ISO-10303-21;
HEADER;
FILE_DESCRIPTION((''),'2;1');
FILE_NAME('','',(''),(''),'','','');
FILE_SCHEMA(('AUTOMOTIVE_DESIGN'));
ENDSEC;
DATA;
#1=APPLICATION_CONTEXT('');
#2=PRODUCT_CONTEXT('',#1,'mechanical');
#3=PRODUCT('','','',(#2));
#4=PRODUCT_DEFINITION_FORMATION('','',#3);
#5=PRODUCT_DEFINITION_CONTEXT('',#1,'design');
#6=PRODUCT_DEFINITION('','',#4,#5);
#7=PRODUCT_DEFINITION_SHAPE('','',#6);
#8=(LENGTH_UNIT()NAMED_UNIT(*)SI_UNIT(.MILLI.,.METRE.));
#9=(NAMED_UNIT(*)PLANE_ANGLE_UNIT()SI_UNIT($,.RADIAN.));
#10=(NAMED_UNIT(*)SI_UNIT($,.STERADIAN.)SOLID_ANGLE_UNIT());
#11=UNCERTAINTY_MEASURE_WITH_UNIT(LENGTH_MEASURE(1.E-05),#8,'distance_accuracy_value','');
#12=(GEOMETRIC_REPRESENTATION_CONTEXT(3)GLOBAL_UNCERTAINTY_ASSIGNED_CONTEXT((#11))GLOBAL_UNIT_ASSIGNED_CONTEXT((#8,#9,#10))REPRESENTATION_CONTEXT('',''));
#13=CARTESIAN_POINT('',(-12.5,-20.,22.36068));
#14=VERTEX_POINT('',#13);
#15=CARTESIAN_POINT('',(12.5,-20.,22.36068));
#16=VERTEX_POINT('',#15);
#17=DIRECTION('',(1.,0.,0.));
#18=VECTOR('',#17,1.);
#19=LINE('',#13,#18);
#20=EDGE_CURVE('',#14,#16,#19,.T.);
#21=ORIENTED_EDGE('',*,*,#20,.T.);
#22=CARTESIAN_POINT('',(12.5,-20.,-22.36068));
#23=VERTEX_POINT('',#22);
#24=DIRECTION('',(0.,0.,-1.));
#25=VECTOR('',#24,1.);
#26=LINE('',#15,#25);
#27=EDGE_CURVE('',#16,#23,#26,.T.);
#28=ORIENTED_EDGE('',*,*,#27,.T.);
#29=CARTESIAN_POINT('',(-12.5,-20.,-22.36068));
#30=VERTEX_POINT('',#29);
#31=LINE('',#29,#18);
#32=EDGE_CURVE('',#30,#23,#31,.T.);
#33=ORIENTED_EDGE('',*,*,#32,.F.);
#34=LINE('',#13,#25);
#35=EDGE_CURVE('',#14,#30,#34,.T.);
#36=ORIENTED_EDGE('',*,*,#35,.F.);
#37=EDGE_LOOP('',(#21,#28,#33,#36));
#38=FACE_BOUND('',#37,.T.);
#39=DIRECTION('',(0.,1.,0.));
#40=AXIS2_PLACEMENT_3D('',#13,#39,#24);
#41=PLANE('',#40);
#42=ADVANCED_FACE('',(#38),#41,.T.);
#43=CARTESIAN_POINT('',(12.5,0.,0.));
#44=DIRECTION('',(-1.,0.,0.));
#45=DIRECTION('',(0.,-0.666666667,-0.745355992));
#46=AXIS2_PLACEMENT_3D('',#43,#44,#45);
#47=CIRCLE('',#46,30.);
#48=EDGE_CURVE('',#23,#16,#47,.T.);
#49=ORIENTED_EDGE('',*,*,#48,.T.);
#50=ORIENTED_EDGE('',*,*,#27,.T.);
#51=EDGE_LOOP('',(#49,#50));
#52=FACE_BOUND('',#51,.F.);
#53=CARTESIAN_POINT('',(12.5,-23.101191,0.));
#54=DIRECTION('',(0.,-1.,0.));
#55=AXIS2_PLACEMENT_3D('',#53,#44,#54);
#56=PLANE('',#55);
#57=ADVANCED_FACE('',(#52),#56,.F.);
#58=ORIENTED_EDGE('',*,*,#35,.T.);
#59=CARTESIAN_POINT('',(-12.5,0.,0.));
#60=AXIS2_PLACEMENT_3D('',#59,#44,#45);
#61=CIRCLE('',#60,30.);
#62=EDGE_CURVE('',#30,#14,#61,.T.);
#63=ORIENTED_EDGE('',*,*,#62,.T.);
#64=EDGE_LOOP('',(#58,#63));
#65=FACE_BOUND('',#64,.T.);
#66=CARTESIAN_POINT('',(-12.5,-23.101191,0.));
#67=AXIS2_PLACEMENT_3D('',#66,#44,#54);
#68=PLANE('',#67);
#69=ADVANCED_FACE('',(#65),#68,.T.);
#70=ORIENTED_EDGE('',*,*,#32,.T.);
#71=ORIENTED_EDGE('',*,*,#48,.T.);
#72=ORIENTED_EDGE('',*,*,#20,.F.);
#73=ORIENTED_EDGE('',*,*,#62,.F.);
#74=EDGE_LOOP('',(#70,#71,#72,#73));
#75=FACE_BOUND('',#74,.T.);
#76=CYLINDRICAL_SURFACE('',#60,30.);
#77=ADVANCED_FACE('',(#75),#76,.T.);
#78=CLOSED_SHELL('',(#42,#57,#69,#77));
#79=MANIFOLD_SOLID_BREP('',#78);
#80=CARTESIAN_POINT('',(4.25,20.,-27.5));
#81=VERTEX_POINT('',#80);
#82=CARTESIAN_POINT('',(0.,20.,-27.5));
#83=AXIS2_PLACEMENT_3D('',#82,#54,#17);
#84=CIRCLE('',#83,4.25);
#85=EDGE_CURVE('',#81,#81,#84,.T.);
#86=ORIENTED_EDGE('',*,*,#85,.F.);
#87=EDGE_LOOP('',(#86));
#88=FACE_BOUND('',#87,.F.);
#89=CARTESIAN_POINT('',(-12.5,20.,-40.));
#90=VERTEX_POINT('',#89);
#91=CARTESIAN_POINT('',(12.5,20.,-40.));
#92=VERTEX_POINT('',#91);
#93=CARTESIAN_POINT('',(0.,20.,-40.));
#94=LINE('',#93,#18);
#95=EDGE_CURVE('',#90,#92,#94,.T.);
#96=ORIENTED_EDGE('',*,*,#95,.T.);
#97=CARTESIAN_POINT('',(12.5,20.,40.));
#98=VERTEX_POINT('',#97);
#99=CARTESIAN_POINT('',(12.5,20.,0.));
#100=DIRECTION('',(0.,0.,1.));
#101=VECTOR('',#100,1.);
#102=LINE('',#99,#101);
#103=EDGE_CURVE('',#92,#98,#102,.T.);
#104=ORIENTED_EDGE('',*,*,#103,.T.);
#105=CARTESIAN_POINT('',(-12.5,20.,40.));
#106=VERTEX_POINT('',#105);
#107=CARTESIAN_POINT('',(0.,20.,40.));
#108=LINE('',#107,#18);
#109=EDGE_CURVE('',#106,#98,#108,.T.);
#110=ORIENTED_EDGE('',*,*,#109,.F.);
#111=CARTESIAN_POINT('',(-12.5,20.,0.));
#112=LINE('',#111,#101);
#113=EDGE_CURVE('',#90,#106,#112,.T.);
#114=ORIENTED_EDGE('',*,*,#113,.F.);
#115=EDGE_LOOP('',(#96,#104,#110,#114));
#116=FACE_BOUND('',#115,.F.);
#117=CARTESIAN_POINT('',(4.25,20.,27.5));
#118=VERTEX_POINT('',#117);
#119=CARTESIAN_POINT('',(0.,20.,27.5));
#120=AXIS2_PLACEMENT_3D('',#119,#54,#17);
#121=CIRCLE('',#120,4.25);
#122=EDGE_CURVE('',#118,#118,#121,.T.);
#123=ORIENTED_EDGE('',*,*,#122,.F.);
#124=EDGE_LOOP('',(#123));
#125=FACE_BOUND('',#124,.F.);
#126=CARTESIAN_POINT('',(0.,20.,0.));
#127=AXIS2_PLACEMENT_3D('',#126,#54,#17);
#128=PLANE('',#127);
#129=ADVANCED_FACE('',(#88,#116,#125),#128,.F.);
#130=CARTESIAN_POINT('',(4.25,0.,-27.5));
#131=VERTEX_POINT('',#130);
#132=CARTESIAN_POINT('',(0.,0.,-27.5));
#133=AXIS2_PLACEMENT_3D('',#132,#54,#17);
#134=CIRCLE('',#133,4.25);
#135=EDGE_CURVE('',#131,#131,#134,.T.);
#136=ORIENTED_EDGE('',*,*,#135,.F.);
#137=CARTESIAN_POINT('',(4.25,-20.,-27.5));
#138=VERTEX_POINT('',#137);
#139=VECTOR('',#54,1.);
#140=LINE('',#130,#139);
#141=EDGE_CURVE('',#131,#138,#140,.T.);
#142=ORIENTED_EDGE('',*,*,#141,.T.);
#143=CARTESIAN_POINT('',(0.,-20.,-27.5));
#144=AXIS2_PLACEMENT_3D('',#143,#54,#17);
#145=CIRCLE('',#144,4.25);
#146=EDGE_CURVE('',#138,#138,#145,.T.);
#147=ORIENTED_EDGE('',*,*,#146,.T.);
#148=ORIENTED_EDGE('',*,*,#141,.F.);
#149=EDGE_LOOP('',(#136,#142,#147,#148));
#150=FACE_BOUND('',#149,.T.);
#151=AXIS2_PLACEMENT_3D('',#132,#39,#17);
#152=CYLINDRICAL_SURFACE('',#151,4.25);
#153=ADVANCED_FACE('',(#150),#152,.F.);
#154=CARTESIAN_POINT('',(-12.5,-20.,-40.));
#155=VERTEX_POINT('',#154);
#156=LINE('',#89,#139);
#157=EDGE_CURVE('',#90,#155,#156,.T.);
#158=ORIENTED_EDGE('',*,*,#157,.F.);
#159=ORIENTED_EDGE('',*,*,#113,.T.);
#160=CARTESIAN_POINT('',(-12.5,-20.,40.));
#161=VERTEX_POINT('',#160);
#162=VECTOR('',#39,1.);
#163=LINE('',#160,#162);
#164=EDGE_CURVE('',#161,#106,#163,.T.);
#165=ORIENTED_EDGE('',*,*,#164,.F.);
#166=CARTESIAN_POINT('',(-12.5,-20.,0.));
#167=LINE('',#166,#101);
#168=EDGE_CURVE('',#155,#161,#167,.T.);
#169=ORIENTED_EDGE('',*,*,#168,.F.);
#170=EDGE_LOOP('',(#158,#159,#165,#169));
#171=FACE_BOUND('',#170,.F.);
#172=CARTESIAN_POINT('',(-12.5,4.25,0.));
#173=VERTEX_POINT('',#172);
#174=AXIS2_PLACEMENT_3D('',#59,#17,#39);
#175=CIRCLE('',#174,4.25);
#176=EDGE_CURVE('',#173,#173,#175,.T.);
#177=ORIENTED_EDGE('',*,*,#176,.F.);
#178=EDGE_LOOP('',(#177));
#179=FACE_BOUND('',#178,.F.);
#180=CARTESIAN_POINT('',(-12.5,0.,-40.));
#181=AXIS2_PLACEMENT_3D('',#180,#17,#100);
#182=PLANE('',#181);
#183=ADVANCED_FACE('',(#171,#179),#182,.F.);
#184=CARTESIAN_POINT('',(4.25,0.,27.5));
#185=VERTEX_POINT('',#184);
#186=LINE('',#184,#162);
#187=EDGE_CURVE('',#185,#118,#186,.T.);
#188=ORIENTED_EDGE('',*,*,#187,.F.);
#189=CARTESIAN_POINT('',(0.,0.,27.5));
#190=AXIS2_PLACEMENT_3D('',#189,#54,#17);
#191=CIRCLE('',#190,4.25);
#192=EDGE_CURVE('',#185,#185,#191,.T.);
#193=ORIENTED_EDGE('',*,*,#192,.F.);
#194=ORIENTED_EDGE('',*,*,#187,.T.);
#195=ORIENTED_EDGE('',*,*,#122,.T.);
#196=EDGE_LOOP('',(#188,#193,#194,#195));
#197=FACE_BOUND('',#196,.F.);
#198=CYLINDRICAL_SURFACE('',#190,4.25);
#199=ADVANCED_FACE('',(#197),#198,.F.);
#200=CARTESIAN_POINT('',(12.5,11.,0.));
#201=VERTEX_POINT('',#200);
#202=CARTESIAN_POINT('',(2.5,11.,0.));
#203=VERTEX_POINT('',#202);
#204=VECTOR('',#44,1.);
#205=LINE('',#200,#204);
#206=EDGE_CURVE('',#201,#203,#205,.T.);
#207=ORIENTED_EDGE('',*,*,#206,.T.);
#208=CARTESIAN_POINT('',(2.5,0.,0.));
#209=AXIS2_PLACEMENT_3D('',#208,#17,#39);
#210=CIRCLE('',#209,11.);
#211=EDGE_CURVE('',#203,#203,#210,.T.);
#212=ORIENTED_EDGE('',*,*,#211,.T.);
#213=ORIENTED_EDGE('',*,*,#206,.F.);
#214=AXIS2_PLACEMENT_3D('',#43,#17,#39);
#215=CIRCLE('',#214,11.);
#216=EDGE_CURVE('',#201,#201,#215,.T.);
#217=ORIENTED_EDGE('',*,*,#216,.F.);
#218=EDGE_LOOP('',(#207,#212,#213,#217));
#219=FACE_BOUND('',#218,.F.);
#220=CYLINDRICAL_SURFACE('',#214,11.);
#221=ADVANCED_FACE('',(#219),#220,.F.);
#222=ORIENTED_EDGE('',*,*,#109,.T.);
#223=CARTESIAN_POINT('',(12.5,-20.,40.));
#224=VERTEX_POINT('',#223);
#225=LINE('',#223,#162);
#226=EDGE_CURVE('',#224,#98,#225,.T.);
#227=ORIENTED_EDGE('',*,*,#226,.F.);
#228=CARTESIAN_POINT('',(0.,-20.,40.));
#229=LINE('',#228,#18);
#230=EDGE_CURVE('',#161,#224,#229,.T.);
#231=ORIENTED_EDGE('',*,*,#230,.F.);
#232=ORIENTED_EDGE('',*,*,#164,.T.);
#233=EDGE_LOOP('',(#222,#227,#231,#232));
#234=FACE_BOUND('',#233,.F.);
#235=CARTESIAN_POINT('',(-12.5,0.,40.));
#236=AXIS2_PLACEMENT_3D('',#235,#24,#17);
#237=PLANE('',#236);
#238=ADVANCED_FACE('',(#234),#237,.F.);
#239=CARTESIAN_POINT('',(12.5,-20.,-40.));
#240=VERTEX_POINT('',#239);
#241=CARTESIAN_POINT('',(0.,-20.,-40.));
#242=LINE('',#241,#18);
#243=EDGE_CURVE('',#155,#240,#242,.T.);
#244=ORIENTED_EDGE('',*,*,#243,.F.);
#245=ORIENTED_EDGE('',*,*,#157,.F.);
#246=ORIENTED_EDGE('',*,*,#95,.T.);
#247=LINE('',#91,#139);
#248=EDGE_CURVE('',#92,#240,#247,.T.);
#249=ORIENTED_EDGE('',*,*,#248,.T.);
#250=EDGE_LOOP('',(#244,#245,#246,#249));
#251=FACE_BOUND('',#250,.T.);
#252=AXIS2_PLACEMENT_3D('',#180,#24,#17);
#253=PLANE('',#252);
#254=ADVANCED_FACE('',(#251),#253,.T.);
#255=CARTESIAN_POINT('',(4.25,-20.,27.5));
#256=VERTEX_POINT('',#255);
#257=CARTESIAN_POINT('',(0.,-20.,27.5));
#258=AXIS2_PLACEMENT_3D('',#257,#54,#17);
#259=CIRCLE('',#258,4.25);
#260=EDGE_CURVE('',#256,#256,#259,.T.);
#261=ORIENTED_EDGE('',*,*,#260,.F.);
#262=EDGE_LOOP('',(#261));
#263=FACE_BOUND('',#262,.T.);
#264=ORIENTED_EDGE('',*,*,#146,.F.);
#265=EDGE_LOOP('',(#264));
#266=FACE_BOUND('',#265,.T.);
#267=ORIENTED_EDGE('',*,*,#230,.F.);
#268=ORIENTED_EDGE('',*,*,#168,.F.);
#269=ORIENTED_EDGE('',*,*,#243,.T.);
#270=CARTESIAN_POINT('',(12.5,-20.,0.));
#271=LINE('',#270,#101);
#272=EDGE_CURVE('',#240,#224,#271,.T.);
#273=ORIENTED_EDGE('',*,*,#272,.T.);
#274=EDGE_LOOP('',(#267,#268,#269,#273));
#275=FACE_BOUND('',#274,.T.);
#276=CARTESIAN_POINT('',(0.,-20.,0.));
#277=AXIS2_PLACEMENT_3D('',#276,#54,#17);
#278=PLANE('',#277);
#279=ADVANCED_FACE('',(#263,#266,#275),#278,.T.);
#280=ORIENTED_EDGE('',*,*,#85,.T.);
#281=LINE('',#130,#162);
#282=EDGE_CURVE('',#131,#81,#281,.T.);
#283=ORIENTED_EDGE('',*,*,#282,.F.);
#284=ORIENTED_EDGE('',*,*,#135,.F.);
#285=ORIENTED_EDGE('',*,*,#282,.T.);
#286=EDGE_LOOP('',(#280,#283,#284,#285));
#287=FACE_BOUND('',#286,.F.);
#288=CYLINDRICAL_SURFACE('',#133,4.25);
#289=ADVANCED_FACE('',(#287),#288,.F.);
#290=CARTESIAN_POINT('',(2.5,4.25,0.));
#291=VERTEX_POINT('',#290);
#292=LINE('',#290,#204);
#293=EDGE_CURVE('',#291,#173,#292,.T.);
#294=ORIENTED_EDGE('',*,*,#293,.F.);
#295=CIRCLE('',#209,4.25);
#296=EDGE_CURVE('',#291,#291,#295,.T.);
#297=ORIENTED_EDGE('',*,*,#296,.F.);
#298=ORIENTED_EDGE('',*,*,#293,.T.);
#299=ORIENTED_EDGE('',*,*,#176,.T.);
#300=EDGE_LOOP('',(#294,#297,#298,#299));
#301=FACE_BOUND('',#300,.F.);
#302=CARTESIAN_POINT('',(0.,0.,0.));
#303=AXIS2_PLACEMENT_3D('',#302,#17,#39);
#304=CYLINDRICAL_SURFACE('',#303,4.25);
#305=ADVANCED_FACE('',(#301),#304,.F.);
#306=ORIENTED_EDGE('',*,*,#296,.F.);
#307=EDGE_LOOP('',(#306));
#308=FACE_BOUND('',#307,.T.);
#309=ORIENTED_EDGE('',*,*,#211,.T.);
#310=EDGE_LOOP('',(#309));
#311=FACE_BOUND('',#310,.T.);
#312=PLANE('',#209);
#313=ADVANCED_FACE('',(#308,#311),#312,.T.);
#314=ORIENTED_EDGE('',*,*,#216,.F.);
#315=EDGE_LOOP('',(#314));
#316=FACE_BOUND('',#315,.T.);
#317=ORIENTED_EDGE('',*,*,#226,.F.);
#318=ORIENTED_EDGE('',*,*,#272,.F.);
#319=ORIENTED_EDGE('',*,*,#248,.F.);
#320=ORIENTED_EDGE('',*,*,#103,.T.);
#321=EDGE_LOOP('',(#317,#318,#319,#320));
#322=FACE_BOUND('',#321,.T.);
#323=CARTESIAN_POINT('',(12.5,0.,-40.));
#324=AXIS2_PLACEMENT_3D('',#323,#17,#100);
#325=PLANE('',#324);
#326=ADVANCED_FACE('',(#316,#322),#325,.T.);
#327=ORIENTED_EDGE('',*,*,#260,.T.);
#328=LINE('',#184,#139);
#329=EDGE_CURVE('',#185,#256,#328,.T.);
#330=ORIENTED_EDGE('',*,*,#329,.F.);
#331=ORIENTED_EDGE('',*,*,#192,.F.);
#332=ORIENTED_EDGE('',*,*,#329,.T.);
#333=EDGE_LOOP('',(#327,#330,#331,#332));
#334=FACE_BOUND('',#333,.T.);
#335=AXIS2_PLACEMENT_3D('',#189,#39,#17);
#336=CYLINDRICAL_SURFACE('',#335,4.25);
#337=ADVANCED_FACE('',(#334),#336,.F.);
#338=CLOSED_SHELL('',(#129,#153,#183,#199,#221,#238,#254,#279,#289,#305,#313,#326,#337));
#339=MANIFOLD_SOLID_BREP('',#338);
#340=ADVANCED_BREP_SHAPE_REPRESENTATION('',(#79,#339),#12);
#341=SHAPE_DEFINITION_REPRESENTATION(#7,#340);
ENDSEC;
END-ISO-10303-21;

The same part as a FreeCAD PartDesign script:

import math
import FreeCAD as App
import Part
import Sketcher

V = App.Vector

doc = App.newDocument("Part")
body = doc.addObject("PartDesign::Body", "Body")

sketch1 = body.newObject("Sketcher::SketchObject", "Sketch")
sketch1.AttachmentSupport = (doc.getObject("XZ_Plane"), [""])
sketch1.MapMode = "FlatFace"
sketch1.addGeometry([
    Part.LineSegment(V(-12.5, 40, 0), V(-12.5, -40, 0)),
    Part.LineSegment(V(-12.5, -40, 0), V(12.5, -40, 0)),
    Part.LineSegment(V(12.5, -40, 0), V(12.5, 40, 0)),
    Part.LineSegment(V(12.5, 40, 0), V(-12.5, 40, 0)),
    Part.Circle(V(0, -27.5, 0), V(0, 0, 1), 4.2),
    Part.Circle(V(0, 27.5, 0), V(0, 0, 1), 4.2),
], False)
sketch1.addConstraint([
    Sketcher.Constraint("Coincident", 0, 2, 1, 1),
    Sketcher.Constraint("Coincident", 1, 2, 2, 1),
    Sketcher.Constraint("Coincident", 2, 2, 3, 1),
    Sketcher.Constraint("Coincident", 3, 2, 0, 1),
    Sketcher.Constraint("Vertical", 0),
    Sketcher.Constraint("Horizontal", 1),
    Sketcher.Constraint("Vertical", 2),
    Sketcher.Constraint("Horizontal", 3),
    Sketcher.Constraint("Equal", 4, 5),
    Sketcher.Constraint("Symmetric", 4, 3, 5, 3, -1, 1),
    Sketcher.Constraint("Symmetric", 0, 2, 2, 2, -1, 1),
    Sketcher.Constraint("PointOnObject", 4, 3, -2),
    Sketcher.Constraint("Diameter", 4, 8.5),
    Sketcher.Constraint("DistanceX", 1, 1, 1, 2, 25.0),
    Sketcher.Constraint("DistanceY", 0, 2, 0, 1, 80.0),
    Sketcher.Constraint("DistanceY", 4, 3, 5, 3, 55.0),
])
pad1 = body.newObject("PartDesign::Pad", "Pad")
pad1.Profile = sketch1
pad1.Type = "TwoLengths"
pad1.Length = 20
pad1.Length2 = 20

sketch2 = body.newObject("Sketcher::SketchObject", "Sketch001")
sketch2.AttachmentSupport = (doc.getObject("YZ_Plane"), [""])
sketch2.MapMode = "FlatFace"
sketch2.addGeometry(Part.Circle(V(0, 0, 0), V(0, 0, 1), 4.2), False)
sketch2.addConstraint([
    Sketcher.Constraint("Coincident", 0, 3, -1, 1),
    Sketcher.Constraint("Diameter", 0, 8.5),
])
pocket1 = body.newObject("PartDesign::Pocket", "Pocket")
pocket1.Profile = sketch2
pocket1.Type = "ThroughAll"

sketch3 = body.newObject("Sketcher::SketchObject", "Sketch002")
sketch3.AttachmentSupport = (doc.getObject("YZ_Plane"), [""])
sketch3.MapMode = "FlatFace"
sketch3.AttachmentOffset = App.Placement(V(0, 0, 12.5), App.Rotation())
sketch3.addGeometry(Part.Circle(V(0, 0, 0), V(0, 0, 1), 11), False)
sketch3.addConstraint([
    Sketcher.Constraint("Coincident", 0, 3, -1, 1),
    Sketcher.Constraint("Diameter", 0, 22.0),
])
pocket2 = body.newObject("PartDesign::Pocket", "Pocket001")
pocket2.Profile = sketch3
pocket2.Length = 10

sketch4 = body.newObject("Sketcher::SketchObject", "Sketch003")
sketch4.AttachmentSupport = (doc.getObject("YZ_Plane"), [""])
sketch4.MapMode = "FlatFace"
sketch4.AttachmentOffset = App.Placement(V(0, 0, 12.5), App.Rotation())
sketch4.addGeometry(Part.Circle(V(0, 0, 0), V(0, 0, 1), 4.2), False)
sketch4.addConstraint([
    Sketcher.Constraint("Coincident", 0, 3, -1, 1),
    Sketcher.Constraint("Diameter", 0, 8.5),
])
pocket3 = body.newObject("PartDesign::Pocket", "Pocket002")
pocket3.Profile = sketch4
pocket3.Length = 25
body2 = doc.addObject("PartDesign::Body", "Body001")

sketch5 = body2.newObject("Sketcher::SketchObject", "Sketch004")
sketch5.AttachmentSupport = (doc.getObject("YZ_Plane001"), [""])
sketch5.MapMode = "FlatFace"
sketch5.AttachmentOffset = App.Placement(V(0, 0, -12.5), App.Rotation())
sketch5.addGeometry([
    Part.LineSegment(V(-20, 22, 0), V(-20, -22, 0)),
    Part.ArcOfCircle(Part.Circle(V(0, 0, 0), V(0, 0, 1), 30), math.radians(132), math.radians(228)),
], False)
sketch5.addConstraint([
    Sketcher.Constraint("Coincident", 0, 1, 1, 1),
    Sketcher.Constraint("Coincident", 1, 2, 0, 2),
    Sketcher.Constraint("Vertical", 0),
    Sketcher.Constraint("Coincident", 1, 3, -1, 1),
    Sketcher.Constraint("Radius", 1, 30.0),
    Sketcher.Constraint("DistanceX", 0, 1, -1, 1, 20.0),
])
pad2 = body2.newObject("PartDesign::Pad", "Pad001")
pad2.Profile = sketch5
pad2.Length = 25

doc.recompute()
